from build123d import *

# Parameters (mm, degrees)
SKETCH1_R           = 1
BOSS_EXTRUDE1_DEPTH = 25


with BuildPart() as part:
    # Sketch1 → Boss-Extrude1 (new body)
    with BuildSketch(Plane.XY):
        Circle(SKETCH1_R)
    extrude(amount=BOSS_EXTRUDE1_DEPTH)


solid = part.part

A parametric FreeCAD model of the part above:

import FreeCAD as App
import Part
import Sketcher

V = App.Vector
Q = App.Units.Quantity

doc = App.newDocument("Part")
params = doc.addObject("Spreadsheet::Sheet", "Params")
for row, (alias, value) in enumerate([
    ("sketch1_diameter", "2 mm"),
    ("pad1_length", "25 mm"),
], start=1):
    params.set(f"A{row}", alias)
    params.set(f"B{row}", "=" + value)
    params.setAlias(f"B{row}", alias)

body = doc.addObject("PartDesign::Body", "Body")

sketch1 = body.newObject("Sketcher::SketchObject", "Sketch")
sketch1.AttachmentSupport = (doc.getObject("XY_Plane"), [""])
sketch1.MapMode = "FlatFace"
sketch1.addGeometry(Part.Circle(V(0, 0, 0), V(0, 0, 1), 1), False)
sketch1.addConstraint(Sketcher.Constraint("Coincident", 0, 3, -1, 1))
sketch1.addConstraint(Sketcher.Constraint("Diameter", 0, Q("2 mm")))
sketch1.setExpression("Constraints[1]", "Params.sketch1_diameter")
pad1 = body.newObject("PartDesign::Pad", "Pad")
pad1.Profile = sketch1
pad1.setExpression("Length", "Params.pad1_length")

doc.recompute()
